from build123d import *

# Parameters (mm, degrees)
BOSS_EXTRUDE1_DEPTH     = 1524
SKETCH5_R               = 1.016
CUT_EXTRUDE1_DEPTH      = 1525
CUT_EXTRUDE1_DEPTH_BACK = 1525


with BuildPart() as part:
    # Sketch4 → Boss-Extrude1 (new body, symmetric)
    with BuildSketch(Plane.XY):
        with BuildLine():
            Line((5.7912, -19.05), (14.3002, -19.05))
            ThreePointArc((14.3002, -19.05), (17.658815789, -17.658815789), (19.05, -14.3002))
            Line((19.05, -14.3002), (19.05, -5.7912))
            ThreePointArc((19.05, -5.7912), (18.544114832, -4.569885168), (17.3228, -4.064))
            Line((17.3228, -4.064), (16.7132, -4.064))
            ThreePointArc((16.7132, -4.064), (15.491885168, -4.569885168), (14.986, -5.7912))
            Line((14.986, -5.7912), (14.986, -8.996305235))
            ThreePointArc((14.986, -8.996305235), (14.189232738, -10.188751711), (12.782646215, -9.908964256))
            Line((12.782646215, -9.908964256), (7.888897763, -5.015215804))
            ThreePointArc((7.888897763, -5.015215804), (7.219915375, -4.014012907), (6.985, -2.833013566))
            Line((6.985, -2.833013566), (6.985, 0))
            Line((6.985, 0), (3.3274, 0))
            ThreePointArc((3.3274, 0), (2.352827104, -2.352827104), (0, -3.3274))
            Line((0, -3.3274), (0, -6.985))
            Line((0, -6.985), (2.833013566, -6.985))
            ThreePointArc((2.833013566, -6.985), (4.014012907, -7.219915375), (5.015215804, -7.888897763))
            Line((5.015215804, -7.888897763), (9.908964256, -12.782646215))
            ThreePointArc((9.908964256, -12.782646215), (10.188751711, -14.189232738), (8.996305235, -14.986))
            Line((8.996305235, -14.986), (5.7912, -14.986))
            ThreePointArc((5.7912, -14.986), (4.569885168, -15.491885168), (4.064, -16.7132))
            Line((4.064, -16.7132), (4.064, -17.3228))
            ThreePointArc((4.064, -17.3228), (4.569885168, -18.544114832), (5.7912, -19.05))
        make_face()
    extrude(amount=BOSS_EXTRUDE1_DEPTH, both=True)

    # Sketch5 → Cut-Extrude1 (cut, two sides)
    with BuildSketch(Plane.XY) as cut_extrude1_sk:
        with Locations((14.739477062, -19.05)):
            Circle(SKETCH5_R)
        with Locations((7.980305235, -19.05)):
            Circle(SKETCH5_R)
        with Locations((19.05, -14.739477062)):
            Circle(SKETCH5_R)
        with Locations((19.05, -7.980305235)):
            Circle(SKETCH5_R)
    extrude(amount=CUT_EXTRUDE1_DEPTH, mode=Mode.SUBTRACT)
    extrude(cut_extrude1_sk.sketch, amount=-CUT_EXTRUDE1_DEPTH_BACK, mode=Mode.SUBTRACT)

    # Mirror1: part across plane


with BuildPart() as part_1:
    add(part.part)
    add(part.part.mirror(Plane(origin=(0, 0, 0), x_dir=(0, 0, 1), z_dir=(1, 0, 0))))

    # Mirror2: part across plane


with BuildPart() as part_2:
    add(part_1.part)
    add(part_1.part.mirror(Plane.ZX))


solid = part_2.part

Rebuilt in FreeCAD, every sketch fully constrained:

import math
import FreeCAD as App
import Part
import Sketcher
Q = App.Units.Quantity

doc = App.newDocument("Part")
body = doc.addObject("PartDesign::Body", "Body")

sketch1 = doc.addObject("Sketcher::SketchObject", "Sketch")
body.addObject(sketch1)
sketch1.AttachmentSupport = (doc.XY_Plane, [""])
sketch1.MapMode = "FlatFace"
sketch1.addGeometry([
    Part.LineSegment(App.Vector(5.8, -19.1, 0), App.Vector(14.3, -19.1, 0)),
    Part.ArcOfCircle(Part.Circle(App.Vector(14.3, -14.3, 0), App.Vector(0, 0, 1), 4.7), math.radians(-90), math.radians(0)),
    Part.LineSegment(App.Vector(19.1, -14.3, 0), App.Vector(19.1, -5.8, 0)),
    Part.ArcOfCircle(Part.Circle(App.Vector(17.3, -5.8, 0), App.Vector(0, 0, 1), 1.7), math.radians(0), math.radians(90)),
    Part.LineSegment(App.Vector(17.3, -4.1, 0), App.Vector(16.7, -4.1, 0)),
    Part.ArcOfCircle(Part.Circle(App.Vector(16.7, -5.8, 0), App.Vector(0, 0, 1), 1.7), math.radians(90), math.radians(180)),
    Part.LineSegment(App.Vector(15, -5.8, 0), App.Vector(15, -9, 0)),
    Part.ArcOfCircle(Part.Circle(App.Vector(13.7, -9, 0), App.Vector(0, 0, 1), 1.3), math.radians(-135), math.radians(0)),
    Part.LineSegment(App.Vector(12.8, -9.9, 0), App.Vector(7.9, -5, 0)),
    Part.ArcOfCircle(Part.Circle(App.Vector(10.1, -2.8, 0), App.Vector(0, 0, 1), 3.1), math.radians(-180), math.radians(-135)),
    Part.LineSegment(App.Vector(7, -2.8, 0), App.Vector(7, 0, 0)),
    Part.LineSegment(App.Vector(7, 0, 0), App.Vector(3.3, 0, 0)),
    Part.ArcOfCircle(Part.Circle(App.Vector(0, 0, 0), App.Vector(0, 0, 1), 3.3), math.radians(-90), math.radians(0)),
    Part.LineSegment(App.Vector(0, -3.3, 0), App.Vector(0, -7, 0)),
    Part.LineSegment(App.Vector(0, -7, 0), App.Vector(2.8, -7, 0)),
    Part.ArcOfCircle(Part.Circle(App.Vector(2.8, -10.1, 0), App.Vector(0, 0, 1), 3.1), math.radians(45), math.radians(90)),
    Part.LineSegment(App.Vector(5, -7.9, 0), App.Vector(9.9, -12.8, 0)),
    Part.ArcOfCircle(Part.Circle(App.Vector(9, -13.7, 0), App.Vector(0, 0, 1), 1.3), math.radians(-90), math.radians(45)),
    Part.LineSegment(App.Vector(9, -15, 0), App.Vector(5.8, -15, 0)),
    Part.ArcOfCircle(Part.Circle(App.Vector(5.8, -16.7, 0), App.Vector(0, 0, 1), 1.7), math.radians(90), math.radians(180)),
    Part.LineSegment(App.Vector(4.1, -16.7, 0), App.Vector(4.1, -17.3, 0)),
    Part.ArcOfCircle(Part.Circle(App.Vector(5.8, -17.3, 0), App.Vector(0, 0, 1), 1.7), math.radians(-180), math.radians(-90)),
], False)
sketch1.addConstraint([
    Sketcher.Constraint("Tangent", 0, 2, 1, 1),
    Sketcher.Constraint("Tangent", 1, 2, 2, 1),
    Sketcher.Constraint("Tangent", 2, 2, 3, 1),
    Sketcher.Constraint("Tangent", 3, 2, 4, 1),
    Sketcher.Constraint("Tangent", 4, 2, 5, 1),
    Sketcher.Constraint("Tangent", 5, 2, 6, 1),
    Sketcher.Constraint("Tangent", 6, 2, 7, 2),
    Sketcher.Constraint("Tangent", 7, 1, 8, 1),
    Sketcher.Constraint("Tangent", 8, 2, 9, 2),
    Sketcher.Constraint("Tangent", 9, 1, 10, 1),
    Sketcher.Constraint("Coincident", 10, 2, 11, 1),
    Sketcher.Constraint("Coincident", 11, 2, 12, 2),
    Sketcher.Constraint("Coincident", 12, 1, 13, 1),
    Sketcher.Constraint("Coincident", 13, 2, 14, 1),
    Sketcher.Constraint("Tangent", 14, 2, 15, 2),
    Sketcher.Constraint("Tangent", 15, 1, 16, 1),
    Sketcher.Constraint("Tangent", 16, 2, 17, 2),
    Sketcher.Constraint("Tangent", 17, 1, 18, 1),
    Sketcher.Constraint("Tangent", 18, 2, 19, 1),
    Sketcher.Constraint("Tangent", 19, 2, 20, 1),
    Sketcher.Constraint("Tangent", 20, 2, 21, 1),
    Sketcher.Constraint("Tangent", 21, 2, 0, 1),
    Sketcher.Constraint("Horizontal", 0),
    Sketcher.Constraint("Vertical", 2),
    Sketcher.Constraint("Horizontal", 4),
    Sketcher.Constraint("Vertical", 6),
    Sketcher.Constraint("Vertical", 10),
    Sketcher.Constraint("Horizontal", 11),
    Sketcher.Constraint("Vertical", 13),
    Sketcher.Constraint("Horizontal", 14),
    Sketcher.Constraint("Horizontal", 18),
    Sketcher.Constraint("Vertical", 20),
    Sketcher.Constraint("Coincident", 12, 3, -1, 1),
    Sketcher.Constraint("Equal", 3, 5),
    Sketcher.Constraint("Equal", 9, 15),
    Sketcher.Constraint("Equal", 7, 17),
    Sketcher.Constraint("Equal", 5, 19),
    Sketcher.Constraint("Equal", 19, 21),
    Sketcher.Constraint("PointOnObject", 10, 2, -1),
    Sketcher.Constraint("PointOnObject", 12, 1, -2),
    Sketcher.Constraint("Parallel", 8, 16),
    Sketcher.Constraint("Equal", 0, 2),
    Sketcher.Constraint("Equal", 18, 6),
    Sketcher.Constraint("Equal", 14, 10),
    Sketcher.Constraint("Equal", 11, 13),
    Sketcher.Constraint("Equal", 4, 20),
    Sketcher.Constraint("Equal", 8, 16),
    Sketcher.Constraint("Radius", 1, Q("0.187 in")),
    Sketcher.Constraint("Radius", 3, Q("0.068 in")),
    Sketcher.Constraint("Radius", 12, Q("0.131 in")),
    Sketcher.Constraint("Radius", 9, Q("0.1215 in")),
    Sketcher.Constraint("DistanceX", 0, 1, 0, 2, Q("0.335 in")),
    Sketcher.Constraint("DistanceX", 4, 2, 4, 1, Q("0.024 in")),
    Sketcher.Constraint("DistanceX", 11, 2, 11, 1, Q("0.144 in")),
    Sketcher.Constraint("DistanceY", 0, 2, -1, 1, Q("0.75 in")),
    Sketcher.Constraint("DistanceX", 17, 3, 7, 3, Q("0.185 in")),
    Sketcher.Constraint("Radius", 7, Q("1.290695 mm")),
])
pad1 = doc.addObject("PartDesign::Pad", "Pad")
body.addObject(pad1)
pad1.Profile = sketch1
pad1.Length = Q("120 in")
pad1.Midplane = True

sketch2 = doc.addObject("Sketcher::SketchObject", "Sketch001")
body.addObject(sketch2)
sketch2.AttachmentSupport = (doc.XY_Plane, [""])
sketch2.MapMode = "FlatFace"
sketch2.addGeometry([
    Part.Circle(App.Vector(14.7, -19.1, 0), App.Vector(0, 0, 1), 1),
    Part.Circle(App.Vector(8, -19.1, 0), App.Vector(0, 0, 1), 1),
    Part.Circle(App.Vector(19.1, -14.7, 0), App.Vector(0, 0, 1), 1),
    Part.Circle(App.Vector(19.1, -8, 0), App.Vector(0, 0, 1), 1),
], False)
sketch2.addConstraint([
    Sketcher.Constraint("Equal", 0, 1),
    Sketcher.Constraint("Equal", 1, 2),
    Sketcher.Constraint("Equal", 2, 3),
    Sketcher.Constraint("Horizontal", 0, 3, 1, 3),
    Sketcher.Constraint("Vertical", 2, 3, 3, 3),
    Sketcher.Constraint("Diameter", 0, Q("0.08 in")),
    Sketcher.Constraint("DistanceY", 0, 3, -1, 1, Q("0.75 in")),
    Sketcher.Constraint("DistanceX", -1, 1, 2, 3, Q("0.75 in")),
    Sketcher.Constraint("DistanceX", 1, 3, 0, 3, Q("6.759172 mm")),
    Sketcher.Constraint("DistanceY", 2, 3, 3, 3, Q("6.759172 mm")),
    Sketcher.Constraint("DistanceX", -1, 1, 0, 3, Q("14.739477 mm")),
    Sketcher.Constraint("DistanceY", 2, 3, -1, 1, Q("14.739477 mm")),
])
pocket1 = doc.addObject("PartDesign::Pocket", "Pocket")
body.addObject(pocket1)
pocket1.Profile = sketch2
pocket1.Type = "ThroughAll"
pocket1.Midplane = True
body2 = doc.addObject("PartDesign::Body", "Body001")
doc.recompute()

body2.BaseFeature = body
doc.recompute()

mirroring = doc.addObject("Part::Mirroring", "Mirroring")
mirroring.Source = body
mirroring.Base = App.Vector(0, 0, 0)
mirroring.Normal = App.Vector(1, 0, 0)
body3 = doc.addObject("PartDesign::Body", "Body002")
body3.BaseFeature = mirroring
boolean = doc.addObject("PartDesign::Boolean", "Boolean")
body2.addObject(boolean)
boolean.Type = "Fuse"
boolean.addObjects([body3])
doc.recompute()
body4 = doc.addObject("PartDesign::Body", "Body003")
doc.recompute()

body4.BaseFeature = body2
doc.recompute()

mirroring2 = doc.addObject("Part::Mirroring", "Mirroring001")
mirroring2.Source = body2
mirroring2.Base = App.Vector(0, 0, 0)
mirroring2.Normal = App.Vector(0, 1, 0)
body5 = doc.addObject("PartDesign::Body", "Body004")
body5.BaseFeature = mirroring2
boolean2 = doc.addObject("PartDesign::Boolean", "Boolean001")
body4.addObject(boolean2)
boolean2.Type = "Fuse"
boolean2.addObjects([body5])
doc.recompute()
mirroring.Visibility = False
mirroring2.Visibility = False

doc.recompute()
